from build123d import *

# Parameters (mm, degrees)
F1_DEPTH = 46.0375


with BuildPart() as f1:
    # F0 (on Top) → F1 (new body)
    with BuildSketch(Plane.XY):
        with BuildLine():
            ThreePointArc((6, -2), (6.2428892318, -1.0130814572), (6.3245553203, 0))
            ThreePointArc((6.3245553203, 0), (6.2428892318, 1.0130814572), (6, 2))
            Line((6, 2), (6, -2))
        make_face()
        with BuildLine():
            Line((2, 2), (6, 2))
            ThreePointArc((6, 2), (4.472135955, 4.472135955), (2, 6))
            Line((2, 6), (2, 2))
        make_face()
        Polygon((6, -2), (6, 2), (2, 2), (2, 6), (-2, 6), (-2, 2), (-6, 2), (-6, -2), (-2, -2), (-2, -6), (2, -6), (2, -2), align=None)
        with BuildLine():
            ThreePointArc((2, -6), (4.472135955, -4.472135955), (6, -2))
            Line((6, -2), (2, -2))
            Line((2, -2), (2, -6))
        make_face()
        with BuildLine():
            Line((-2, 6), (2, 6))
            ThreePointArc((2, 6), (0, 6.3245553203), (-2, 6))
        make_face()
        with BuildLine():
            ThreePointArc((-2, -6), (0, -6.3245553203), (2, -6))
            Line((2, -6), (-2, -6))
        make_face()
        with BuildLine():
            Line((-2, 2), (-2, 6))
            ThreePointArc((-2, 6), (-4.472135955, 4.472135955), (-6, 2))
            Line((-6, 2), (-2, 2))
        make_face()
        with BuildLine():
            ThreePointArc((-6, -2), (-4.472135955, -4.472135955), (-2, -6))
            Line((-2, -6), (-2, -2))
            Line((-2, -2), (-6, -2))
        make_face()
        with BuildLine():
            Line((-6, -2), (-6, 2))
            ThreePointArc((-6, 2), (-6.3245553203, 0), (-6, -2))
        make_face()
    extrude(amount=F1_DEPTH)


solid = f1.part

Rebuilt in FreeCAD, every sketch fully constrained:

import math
import FreeCAD as App
import Part
import Sketcher

V = App.Vector
Q = App.Units.Quantity

doc = App.newDocument("Part")
params = doc.addObject("Spreadsheet::Sheet", "Params")
for row, (alias, value) in enumerate([
    ("pad1_length", "1.8125 in"),
], start=1):
    params.set(f"A{row}", alias)
    params.set(f"B{row}", "=" + value)
    params.setAlias(f"B{row}", alias)

body = doc.addObject("PartDesign::Body", "Body")

# Sketch on XY plane
sketch1 = doc.addObject("Sketcher::SketchObject", "Sketch")
body.addObject(sketch1)
sketch1.AttachmentSupport = (doc.XY_Plane, [""])
sketch1.MapMode = "FlatFace"
sketch1.addGeometry(Part.ArcOfCircle(Part.Circle(V(0, 0, 0), V(0, 0, 1), 6.3), math.radians(-18.43), math.radians(0)), False)
sketch1.addGeometry(Part.ArcOfCircle(Part.Circle(V(0, 0, 0), V(0, 0, 1), 6.3), math.radians(0), math.radians(18.43)), False)
sketch1.addGeometry(Part.ArcOfCircle(Part.Circle(V(0, 0, 0), V(0, 0, 1), 6.3), math.radians(18), math.radians(72)), False)
sketch1.addGeometry(Part.ArcOfCircle(Part.Circle(V(0, 0, 0), V(0, 0, 1), 6.3), math.radians(72), math.radians(108)), False)
sketch1.addGeometry(Part.ArcOfCircle(Part.Circle(V(0, 0, 0), V(0, 0, 1), 6.3), math.radians(108), math.radians(162)), False)
sketch1.addGeometry(Part.ArcOfCircle(Part.Circle(V(0, 0, 0), V(0, 0, 1), 6.3), math.radians(162), math.radians(198)), False)
sketch1.addGeometry(Part.ArcOfCircle(Part.Circle(V(0, 0, 0), V(0, 0, 1), 6.3), math.radians(-162), math.radians(-108)), False)
sketch1.addGeometry(Part.ArcOfCircle(Part.Circle(V(0, 0, 0), V(0, 0, 1), 6.3), math.radians(-108), math.radians(-72)), False)
sketch1.addGeometry(Part.ArcOfCircle(Part.Circle(V(0, 0, 0), V(0, 0, 1), 6.3), math.radians(-72), math.radians(-18)), False)
sketch1.addConstraint(Sketcher.Constraint("Tangent", 0, 2, 1, 1))
sketch1.addConstraint(Sketcher.Constraint("Tangent", 1, 2, 2, 1))
sketch1.addConstraint(Sketcher.Constraint("Tangent", 2, 2, 3, 1))
sketch1.addConstraint(Sketcher.Constraint("Tangent", 3, 2, 4, 1))
sketch1.addConstraint(Sketcher.Constraint("Tangent", 4, 2, 5, 1))
sketch1.addConstraint(Sketcher.Constraint("Tangent", 5, 2, 6, 1))
sketch1.addConstraint(Sketcher.Constraint("Tangent", 6, 2, 7, 1))
sketch1.addConstraint(Sketcher.Constraint("Tangent", 7, 2, 8, 1))
sketch1.addConstraint(Sketcher.Constraint("Tangent", 8, 2, 0, 1))
sketch1.addConstraint(Sketcher.Constraint("Coincident", 0, 3, -1, 1))
sketch1.addConstraint(Sketcher.Constraint("Coincident", 2, 3, -1, 1))
sketch1.addConstraint(Sketcher.Constraint("Coincident", 4, 3, -1, 1))
sketch1.addConstraint(Sketcher.Constraint("Coincident", 6, 3, -1, 1))
sketch1.addConstraint(Sketcher.Constraint("PointOnObject", 0, 2, -1))
sketch1.addConstraint(Sketcher.Constraint("Horizontal", 2, 2, 3, 2))
sketch1.addConstraint(Sketcher.Constraint("Horizontal", 1, 2, 4, 2))
sketch1.addConstraint(Sketcher.Constraint("Horizontal", 6, 2, 7, 2))
sketch1.addConstraint(Sketcher.Constraint("Horizontal", 5, 2, 8, 2))
sketch1.addConstraint(Sketcher.Constraint("Vertical", 4, 2, 5, 2))
sketch1.addConstraint(Sketcher.Constraint("Vertical", 3, 2, 6, 2))
sketch1.addConstraint(Sketcher.Constraint("Radius", 0, Q("6.324555 mm")))
sketch1.addConstraint(Sketcher.Constraint("DistanceX", -1, 1, 1, 2, Q("6 mm")))
sketch1.addConstraint(Sketcher.Constraint("DistanceX", -1, 1, 2, 2, Q("2 mm")))
pad1 = doc.addObject("PartDesign::Pad", "Pad")
body.addObject(pad1)
pad1.Profile = sketch1
pad1.setExpression("Length", "Params.pad1_length")

doc.recompute()
